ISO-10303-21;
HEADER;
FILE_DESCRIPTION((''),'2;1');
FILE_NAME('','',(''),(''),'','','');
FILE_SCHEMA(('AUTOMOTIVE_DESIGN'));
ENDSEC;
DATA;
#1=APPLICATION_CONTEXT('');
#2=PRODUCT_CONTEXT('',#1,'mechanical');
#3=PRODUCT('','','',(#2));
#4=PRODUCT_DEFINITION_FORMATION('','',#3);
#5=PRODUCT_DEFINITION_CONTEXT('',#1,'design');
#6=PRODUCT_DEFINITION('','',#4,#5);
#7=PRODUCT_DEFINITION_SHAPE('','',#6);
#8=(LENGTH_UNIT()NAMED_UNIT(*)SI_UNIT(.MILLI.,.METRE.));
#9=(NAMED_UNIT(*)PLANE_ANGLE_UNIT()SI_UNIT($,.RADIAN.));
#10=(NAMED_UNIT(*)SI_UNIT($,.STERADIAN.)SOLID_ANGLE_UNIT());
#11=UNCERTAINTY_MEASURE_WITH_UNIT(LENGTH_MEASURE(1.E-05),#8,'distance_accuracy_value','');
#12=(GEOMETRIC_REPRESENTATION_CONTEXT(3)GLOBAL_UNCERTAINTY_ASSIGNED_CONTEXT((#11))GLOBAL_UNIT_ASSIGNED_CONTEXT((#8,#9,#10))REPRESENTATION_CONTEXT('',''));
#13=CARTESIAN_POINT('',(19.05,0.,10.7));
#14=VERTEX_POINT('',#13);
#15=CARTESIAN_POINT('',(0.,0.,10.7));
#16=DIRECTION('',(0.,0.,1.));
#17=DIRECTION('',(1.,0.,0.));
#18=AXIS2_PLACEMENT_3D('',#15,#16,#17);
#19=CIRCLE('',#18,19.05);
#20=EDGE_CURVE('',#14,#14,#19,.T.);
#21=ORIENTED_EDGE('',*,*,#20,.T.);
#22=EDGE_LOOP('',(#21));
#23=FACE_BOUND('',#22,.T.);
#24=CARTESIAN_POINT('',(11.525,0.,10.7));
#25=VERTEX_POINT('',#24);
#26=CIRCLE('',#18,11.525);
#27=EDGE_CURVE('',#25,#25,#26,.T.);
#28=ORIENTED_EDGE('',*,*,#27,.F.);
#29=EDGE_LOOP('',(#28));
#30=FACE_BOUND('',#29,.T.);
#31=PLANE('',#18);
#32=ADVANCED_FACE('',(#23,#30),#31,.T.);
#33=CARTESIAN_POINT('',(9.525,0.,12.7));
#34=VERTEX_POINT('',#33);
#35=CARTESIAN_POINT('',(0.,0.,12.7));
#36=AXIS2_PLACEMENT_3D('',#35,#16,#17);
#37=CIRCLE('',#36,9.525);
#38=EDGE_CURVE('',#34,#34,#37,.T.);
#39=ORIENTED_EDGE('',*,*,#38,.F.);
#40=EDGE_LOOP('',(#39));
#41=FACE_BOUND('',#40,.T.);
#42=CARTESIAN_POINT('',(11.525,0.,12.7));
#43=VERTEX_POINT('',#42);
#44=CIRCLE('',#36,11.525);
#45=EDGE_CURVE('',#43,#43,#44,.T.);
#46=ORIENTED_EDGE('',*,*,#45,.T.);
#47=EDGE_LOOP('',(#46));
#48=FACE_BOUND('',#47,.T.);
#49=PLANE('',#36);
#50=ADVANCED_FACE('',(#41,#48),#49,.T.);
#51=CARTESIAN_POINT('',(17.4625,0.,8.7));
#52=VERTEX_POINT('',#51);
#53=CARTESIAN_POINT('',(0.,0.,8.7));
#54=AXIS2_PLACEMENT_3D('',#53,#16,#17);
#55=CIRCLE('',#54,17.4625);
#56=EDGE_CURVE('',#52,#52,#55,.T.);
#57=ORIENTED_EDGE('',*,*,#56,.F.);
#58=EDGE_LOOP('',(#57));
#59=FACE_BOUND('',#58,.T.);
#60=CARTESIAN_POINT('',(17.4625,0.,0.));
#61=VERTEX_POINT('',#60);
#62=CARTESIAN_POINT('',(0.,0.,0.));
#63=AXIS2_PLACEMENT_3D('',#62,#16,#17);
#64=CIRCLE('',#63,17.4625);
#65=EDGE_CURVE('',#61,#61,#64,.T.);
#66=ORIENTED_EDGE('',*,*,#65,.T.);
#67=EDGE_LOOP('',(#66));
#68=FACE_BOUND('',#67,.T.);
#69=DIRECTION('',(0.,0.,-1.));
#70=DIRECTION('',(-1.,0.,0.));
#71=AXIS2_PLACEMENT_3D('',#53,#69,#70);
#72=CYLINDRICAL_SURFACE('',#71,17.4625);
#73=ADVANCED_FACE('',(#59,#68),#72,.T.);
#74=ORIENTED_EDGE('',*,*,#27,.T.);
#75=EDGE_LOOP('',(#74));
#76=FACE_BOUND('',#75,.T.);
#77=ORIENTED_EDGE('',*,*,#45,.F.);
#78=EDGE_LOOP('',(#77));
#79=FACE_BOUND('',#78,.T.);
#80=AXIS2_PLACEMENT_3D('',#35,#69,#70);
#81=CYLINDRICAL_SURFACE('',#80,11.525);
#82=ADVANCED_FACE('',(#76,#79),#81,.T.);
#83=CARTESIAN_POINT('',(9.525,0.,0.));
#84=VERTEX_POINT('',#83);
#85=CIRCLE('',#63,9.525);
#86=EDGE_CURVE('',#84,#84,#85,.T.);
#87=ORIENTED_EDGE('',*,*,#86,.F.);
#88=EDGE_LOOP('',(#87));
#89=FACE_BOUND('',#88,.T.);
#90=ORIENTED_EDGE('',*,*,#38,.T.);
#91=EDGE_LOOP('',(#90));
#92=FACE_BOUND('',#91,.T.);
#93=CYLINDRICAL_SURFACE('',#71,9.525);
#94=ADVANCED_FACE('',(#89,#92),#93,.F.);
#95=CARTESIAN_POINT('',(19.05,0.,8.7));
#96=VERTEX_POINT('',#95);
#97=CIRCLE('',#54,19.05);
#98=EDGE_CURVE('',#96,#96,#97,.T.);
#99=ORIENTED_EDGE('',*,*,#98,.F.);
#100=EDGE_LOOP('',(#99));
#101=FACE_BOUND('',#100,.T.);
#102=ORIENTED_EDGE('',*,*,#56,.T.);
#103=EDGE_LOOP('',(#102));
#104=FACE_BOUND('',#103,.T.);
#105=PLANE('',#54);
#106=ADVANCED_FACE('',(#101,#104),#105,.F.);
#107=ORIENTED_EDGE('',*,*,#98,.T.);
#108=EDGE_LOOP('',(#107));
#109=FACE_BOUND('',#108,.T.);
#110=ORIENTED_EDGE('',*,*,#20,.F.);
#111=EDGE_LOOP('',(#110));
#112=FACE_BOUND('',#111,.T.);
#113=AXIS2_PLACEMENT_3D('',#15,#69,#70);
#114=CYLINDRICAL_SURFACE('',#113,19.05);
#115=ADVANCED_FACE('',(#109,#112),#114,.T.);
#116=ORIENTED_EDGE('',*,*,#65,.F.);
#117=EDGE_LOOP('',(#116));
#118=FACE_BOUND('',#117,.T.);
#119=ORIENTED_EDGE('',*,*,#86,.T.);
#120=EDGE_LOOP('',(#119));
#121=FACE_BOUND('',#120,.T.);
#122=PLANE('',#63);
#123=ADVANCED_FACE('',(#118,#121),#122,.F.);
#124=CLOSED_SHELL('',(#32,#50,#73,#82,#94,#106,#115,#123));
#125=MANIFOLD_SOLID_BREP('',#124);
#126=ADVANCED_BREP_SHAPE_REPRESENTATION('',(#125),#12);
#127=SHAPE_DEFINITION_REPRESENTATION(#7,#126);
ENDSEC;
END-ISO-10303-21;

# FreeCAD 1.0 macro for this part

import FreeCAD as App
import Part
import Sketcher
Q = App.Units.Quantity

doc = App.newDocument("Part")
body = doc.addObject("PartDesign::Body", "Body")

sketch1 = doc.addObject("Sketcher::SketchObject", "Sketch")
body.addObject(sketch1)
sketch1.AttachmentSupport = (doc.XY_Plane, [""])
sketch1.MapMode = "FlatFace"
sketch1.addGeometry([
    Part.Circle(App.Vector(0, 0, 0), App.Vector(0, 0, 1), 17),
    Part.Circle(App.Vector(0, 0, 0), App.Vector(0, 0, 1), 10),
], False)
sketch1.addConstraint([
    Sketcher.Constraint("Coincident", 0, 3, -1, 1),
    Sketcher.Constraint("Coincident", 1, 3, -1, 1),
    Sketcher.Constraint("Diameter", 1, Q("0.75 in")),
    Sketcher.Constraint("Diameter", 0, Q("1.375 in")),
])
pad1 = doc.addObject("PartDesign::Pad", "Pad")
body.addObject(pad1)
pad1.Profile = sketch1
pad1.Length = 8.7

sketch2 = doc.addObject("Sketcher::SketchObject", "Sketch001")
body.addObject(sketch2)
sketch2.AttachmentSupport = (doc.XY_Plane, [""])
sketch2.MapMode = "FlatFace"
sketch2.AttachmentOffset = App.Placement(App.Vector(0, 0, 8.7), App.Rotation())
sketch2.addGeometry([
    Part.Circle(App.Vector(0, 0, 0), App.Vector(0, 0, 1), 19),
    Part.Circle(App.Vector(0, 0, 0), App.Vector(0, 0, 1), 10),
], False)
sketch2.addConstraint([
    Sketcher.Constraint("Coincident", 0, 3, -1, 1),
    Sketcher.Constraint("Coincident", 1, 3, -1, 1),
    Sketcher.Constraint("Diameter", 0, Q("1.5 in")),
    Sketcher.Constraint("Diameter", 1, Q("0.75 in")),
])
pad2 = doc.addObject("PartDesign::Pad", "Pad001")
body.addObject(pad2)
pad2.Profile = sketch2
pad2.Length = 2

sketch3 = doc.addObject("Sketcher::SketchObject", "Sketch002")
body.addObject(sketch3)
sketch3.AttachmentSupport = (doc.XY_Plane, [""])
sketch3.MapMode = "FlatFace"
sketch3.AttachmentOffset = App.Placement(App.Vector(0, 0, 10.7), App.Rotation())
sketch3.addGeometry([
    Part.Circle(App.Vector(0, 0, 0), App.Vector(0, 0, 1), 12),
    Part.Circle(App.Vector(0, 0, 0), App.Vector(0, 0, 1), 10),
], False)
sketch3.addConstraint([
    Sketcher.Constraint("Coincident", 0, 3, -1, 1),
    Sketcher.Constraint("Coincident", 1, 3, -1, 1),
    Sketcher.Constraint("Diameter", 1, Q("0.75 in")),
    Sketcher.Constraint("Diameter", 0, 23.05),
])
pad3 = doc.addObject("PartDesign::Pad", "Pad002")
body.addObject(pad3)
pad3.Profile = sketch3
pad3.Length = 2

doc.recompute()
